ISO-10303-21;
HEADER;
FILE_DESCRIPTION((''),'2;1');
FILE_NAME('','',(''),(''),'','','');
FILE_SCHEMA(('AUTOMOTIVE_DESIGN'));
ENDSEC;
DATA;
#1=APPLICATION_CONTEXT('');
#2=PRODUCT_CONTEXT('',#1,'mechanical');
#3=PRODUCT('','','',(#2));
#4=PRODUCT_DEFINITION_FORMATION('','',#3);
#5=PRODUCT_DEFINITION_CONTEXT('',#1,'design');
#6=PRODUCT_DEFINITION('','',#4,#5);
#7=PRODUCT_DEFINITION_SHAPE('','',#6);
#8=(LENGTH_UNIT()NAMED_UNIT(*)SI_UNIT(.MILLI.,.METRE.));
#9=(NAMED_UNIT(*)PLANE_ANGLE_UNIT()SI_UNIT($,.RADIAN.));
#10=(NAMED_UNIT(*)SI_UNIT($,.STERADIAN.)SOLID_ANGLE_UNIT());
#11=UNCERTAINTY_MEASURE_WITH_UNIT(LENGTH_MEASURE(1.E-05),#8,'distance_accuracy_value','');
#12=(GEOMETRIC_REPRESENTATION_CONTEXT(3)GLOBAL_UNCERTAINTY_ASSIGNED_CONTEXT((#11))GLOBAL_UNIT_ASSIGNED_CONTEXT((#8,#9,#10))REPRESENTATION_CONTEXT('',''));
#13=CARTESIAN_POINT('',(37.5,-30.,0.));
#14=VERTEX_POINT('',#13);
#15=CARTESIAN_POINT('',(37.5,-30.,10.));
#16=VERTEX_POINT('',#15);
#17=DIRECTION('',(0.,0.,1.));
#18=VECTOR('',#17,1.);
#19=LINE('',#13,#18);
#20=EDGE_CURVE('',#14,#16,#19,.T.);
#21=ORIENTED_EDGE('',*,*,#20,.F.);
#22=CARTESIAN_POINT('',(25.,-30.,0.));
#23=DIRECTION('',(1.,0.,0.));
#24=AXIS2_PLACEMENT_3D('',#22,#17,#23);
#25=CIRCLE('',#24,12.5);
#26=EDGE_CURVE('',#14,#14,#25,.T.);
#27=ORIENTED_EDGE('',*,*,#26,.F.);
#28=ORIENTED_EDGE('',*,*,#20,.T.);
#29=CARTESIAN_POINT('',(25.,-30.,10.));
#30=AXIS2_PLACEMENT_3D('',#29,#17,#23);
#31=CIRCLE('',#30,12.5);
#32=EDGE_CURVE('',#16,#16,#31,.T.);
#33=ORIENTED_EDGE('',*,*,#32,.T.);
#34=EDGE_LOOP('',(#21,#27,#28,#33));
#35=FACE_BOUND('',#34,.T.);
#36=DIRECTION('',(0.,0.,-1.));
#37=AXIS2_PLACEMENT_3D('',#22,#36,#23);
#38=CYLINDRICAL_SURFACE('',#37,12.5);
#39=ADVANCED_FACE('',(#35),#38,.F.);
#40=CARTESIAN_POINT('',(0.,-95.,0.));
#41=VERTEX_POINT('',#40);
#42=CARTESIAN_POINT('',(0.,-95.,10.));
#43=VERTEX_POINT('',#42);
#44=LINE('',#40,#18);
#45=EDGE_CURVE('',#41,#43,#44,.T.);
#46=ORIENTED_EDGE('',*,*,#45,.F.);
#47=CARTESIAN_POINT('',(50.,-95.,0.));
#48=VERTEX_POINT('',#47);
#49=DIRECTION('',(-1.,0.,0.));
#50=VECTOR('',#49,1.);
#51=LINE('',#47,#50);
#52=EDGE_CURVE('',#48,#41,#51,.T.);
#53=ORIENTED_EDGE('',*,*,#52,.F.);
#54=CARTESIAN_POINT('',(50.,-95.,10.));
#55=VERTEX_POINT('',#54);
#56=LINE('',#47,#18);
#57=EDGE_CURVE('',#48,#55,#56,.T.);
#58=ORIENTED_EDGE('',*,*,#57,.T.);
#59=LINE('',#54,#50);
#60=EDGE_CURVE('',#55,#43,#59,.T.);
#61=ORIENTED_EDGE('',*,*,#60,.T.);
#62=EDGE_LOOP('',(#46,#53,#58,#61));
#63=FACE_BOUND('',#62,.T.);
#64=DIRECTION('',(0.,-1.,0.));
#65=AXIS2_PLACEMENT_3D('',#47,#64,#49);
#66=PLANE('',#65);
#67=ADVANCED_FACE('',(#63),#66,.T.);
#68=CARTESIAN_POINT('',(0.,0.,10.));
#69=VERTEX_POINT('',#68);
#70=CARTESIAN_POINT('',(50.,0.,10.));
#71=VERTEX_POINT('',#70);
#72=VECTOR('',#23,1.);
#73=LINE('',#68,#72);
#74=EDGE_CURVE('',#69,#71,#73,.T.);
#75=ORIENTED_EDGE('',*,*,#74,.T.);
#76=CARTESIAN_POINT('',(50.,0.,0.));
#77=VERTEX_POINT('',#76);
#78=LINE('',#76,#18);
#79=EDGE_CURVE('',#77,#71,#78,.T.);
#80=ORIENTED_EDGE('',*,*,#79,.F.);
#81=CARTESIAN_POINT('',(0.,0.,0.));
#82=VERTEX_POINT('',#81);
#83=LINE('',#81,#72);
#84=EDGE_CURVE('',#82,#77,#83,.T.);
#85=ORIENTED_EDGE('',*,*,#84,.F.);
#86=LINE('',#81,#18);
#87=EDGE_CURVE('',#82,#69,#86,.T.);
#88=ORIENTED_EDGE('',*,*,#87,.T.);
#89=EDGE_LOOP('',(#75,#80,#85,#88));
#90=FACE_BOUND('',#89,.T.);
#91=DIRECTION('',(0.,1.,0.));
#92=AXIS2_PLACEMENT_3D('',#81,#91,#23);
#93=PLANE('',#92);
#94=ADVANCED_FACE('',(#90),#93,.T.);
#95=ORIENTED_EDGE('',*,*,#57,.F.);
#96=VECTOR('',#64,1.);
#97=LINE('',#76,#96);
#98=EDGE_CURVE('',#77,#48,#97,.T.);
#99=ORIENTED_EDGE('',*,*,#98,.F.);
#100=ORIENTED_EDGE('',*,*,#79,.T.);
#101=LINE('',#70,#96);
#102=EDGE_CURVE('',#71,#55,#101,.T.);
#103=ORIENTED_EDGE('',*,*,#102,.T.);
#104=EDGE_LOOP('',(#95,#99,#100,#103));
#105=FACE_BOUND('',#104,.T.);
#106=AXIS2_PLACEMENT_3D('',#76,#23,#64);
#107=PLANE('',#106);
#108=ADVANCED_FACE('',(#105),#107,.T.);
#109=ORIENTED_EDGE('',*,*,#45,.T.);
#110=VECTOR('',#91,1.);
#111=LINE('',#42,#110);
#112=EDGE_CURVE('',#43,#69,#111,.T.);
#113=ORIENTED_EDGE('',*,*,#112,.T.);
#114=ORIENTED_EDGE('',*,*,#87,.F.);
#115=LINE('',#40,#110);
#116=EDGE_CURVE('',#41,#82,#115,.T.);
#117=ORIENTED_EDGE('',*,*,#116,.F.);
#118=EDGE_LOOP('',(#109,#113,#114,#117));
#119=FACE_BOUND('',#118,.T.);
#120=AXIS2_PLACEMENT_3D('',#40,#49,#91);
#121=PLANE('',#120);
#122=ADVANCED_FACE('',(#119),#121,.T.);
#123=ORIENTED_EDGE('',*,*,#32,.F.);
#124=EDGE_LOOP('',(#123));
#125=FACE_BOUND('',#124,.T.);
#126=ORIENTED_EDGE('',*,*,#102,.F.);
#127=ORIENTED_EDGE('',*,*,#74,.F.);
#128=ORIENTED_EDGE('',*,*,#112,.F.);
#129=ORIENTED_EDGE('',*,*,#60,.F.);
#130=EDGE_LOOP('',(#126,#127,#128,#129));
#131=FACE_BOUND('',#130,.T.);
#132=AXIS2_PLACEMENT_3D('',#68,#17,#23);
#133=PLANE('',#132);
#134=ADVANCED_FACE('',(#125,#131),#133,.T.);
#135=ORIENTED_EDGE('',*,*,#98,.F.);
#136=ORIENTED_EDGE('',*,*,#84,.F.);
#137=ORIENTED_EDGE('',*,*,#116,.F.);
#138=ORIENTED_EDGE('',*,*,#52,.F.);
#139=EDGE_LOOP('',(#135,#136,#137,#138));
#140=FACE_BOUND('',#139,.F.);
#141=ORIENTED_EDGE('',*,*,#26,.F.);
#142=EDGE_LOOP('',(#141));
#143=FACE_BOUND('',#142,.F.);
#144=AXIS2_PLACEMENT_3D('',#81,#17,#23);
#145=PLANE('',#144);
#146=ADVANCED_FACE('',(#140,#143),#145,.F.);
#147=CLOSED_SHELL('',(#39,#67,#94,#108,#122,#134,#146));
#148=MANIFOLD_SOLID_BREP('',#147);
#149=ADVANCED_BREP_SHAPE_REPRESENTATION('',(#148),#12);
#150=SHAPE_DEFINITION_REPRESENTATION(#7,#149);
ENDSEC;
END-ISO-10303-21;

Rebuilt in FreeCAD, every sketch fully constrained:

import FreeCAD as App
import Part
import Sketcher

doc = App.newDocument("Part")
body = doc.addObject("PartDesign::Body", "Body")

sketch1 = body.newObject("Sketcher::SketchObject", "Sketch")
sketch1.AttachmentSupport = (doc.getObject("XY_Plane"), [""])
sketch1.MapMode = "FlatFace"
sketch1.addGeometry(Part.LineSegment(App.Vector(50, 0, 0), App.Vector(0, 0, 0)), False)
sketch1.addGeometry(Part.LineSegment(App.Vector(0, 0, 0), App.Vector(0, -95, 0)), False)
sketch1.addGeometry(Part.LineSegment(App.Vector(0, -95, 0), App.Vector(50, -95, 0)), False)
sketch1.addGeometry(Part.LineSegment(App.Vector(50, -95, 0), App.Vector(50, 0, 0)), False)
sketch1.addGeometry(Part.Circle(App.Vector(25, -30, 0), App.Vector(0, 0, 1), 12), False)
sketch1.addConstraint(Sketcher.Constraint("Coincident", 0, 2, 1, 1))
sketch1.addConstraint(Sketcher.Constraint("Coincident", 1, 2, 2, 1))
sketch1.addConstraint(Sketcher.Constraint("Coincident", 2, 2, 3, 1))
sketch1.addConstraint(Sketcher.Constraint("Coincident", 3, 2, 0, 1))
sketch1.addConstraint(Sketcher.Constraint("Horizontal", 0))
sketch1.addConstraint(Sketcher.Constraint("Vertical", 1))
sketch1.addConstraint(Sketcher.Constraint("Horizontal", 2))
sketch1.addConstraint(Sketcher.Constraint("Vertical", 3))
sketch1.addConstraint(Sketcher.Constraint("Coincident", 0, 2, -1, 1))
sketch1.addConstraint(Sketcher.Constraint("Diameter", 4, 25.0))
sketch1.addConstraint(Sketcher.Constraint("DistanceX", 0, 2, 0, 1, 50.0))
sketch1.addConstraint(Sketcher.Constraint("DistanceY", 1, 2, 1, 1, 95.0))
sketch1.addConstraint(Sketcher.Constraint("DistanceX", -1, 1, 4, 3, 25.0))
sketch1.addConstraint(Sketcher.Constraint("DistanceY", 4, 3, -1, 1, 30.0))
pad1 = body.newObject("PartDesign::Pad", "Pad")
pad1.Profile = sketch1
pad1.Length = 10

doc.recompute()
